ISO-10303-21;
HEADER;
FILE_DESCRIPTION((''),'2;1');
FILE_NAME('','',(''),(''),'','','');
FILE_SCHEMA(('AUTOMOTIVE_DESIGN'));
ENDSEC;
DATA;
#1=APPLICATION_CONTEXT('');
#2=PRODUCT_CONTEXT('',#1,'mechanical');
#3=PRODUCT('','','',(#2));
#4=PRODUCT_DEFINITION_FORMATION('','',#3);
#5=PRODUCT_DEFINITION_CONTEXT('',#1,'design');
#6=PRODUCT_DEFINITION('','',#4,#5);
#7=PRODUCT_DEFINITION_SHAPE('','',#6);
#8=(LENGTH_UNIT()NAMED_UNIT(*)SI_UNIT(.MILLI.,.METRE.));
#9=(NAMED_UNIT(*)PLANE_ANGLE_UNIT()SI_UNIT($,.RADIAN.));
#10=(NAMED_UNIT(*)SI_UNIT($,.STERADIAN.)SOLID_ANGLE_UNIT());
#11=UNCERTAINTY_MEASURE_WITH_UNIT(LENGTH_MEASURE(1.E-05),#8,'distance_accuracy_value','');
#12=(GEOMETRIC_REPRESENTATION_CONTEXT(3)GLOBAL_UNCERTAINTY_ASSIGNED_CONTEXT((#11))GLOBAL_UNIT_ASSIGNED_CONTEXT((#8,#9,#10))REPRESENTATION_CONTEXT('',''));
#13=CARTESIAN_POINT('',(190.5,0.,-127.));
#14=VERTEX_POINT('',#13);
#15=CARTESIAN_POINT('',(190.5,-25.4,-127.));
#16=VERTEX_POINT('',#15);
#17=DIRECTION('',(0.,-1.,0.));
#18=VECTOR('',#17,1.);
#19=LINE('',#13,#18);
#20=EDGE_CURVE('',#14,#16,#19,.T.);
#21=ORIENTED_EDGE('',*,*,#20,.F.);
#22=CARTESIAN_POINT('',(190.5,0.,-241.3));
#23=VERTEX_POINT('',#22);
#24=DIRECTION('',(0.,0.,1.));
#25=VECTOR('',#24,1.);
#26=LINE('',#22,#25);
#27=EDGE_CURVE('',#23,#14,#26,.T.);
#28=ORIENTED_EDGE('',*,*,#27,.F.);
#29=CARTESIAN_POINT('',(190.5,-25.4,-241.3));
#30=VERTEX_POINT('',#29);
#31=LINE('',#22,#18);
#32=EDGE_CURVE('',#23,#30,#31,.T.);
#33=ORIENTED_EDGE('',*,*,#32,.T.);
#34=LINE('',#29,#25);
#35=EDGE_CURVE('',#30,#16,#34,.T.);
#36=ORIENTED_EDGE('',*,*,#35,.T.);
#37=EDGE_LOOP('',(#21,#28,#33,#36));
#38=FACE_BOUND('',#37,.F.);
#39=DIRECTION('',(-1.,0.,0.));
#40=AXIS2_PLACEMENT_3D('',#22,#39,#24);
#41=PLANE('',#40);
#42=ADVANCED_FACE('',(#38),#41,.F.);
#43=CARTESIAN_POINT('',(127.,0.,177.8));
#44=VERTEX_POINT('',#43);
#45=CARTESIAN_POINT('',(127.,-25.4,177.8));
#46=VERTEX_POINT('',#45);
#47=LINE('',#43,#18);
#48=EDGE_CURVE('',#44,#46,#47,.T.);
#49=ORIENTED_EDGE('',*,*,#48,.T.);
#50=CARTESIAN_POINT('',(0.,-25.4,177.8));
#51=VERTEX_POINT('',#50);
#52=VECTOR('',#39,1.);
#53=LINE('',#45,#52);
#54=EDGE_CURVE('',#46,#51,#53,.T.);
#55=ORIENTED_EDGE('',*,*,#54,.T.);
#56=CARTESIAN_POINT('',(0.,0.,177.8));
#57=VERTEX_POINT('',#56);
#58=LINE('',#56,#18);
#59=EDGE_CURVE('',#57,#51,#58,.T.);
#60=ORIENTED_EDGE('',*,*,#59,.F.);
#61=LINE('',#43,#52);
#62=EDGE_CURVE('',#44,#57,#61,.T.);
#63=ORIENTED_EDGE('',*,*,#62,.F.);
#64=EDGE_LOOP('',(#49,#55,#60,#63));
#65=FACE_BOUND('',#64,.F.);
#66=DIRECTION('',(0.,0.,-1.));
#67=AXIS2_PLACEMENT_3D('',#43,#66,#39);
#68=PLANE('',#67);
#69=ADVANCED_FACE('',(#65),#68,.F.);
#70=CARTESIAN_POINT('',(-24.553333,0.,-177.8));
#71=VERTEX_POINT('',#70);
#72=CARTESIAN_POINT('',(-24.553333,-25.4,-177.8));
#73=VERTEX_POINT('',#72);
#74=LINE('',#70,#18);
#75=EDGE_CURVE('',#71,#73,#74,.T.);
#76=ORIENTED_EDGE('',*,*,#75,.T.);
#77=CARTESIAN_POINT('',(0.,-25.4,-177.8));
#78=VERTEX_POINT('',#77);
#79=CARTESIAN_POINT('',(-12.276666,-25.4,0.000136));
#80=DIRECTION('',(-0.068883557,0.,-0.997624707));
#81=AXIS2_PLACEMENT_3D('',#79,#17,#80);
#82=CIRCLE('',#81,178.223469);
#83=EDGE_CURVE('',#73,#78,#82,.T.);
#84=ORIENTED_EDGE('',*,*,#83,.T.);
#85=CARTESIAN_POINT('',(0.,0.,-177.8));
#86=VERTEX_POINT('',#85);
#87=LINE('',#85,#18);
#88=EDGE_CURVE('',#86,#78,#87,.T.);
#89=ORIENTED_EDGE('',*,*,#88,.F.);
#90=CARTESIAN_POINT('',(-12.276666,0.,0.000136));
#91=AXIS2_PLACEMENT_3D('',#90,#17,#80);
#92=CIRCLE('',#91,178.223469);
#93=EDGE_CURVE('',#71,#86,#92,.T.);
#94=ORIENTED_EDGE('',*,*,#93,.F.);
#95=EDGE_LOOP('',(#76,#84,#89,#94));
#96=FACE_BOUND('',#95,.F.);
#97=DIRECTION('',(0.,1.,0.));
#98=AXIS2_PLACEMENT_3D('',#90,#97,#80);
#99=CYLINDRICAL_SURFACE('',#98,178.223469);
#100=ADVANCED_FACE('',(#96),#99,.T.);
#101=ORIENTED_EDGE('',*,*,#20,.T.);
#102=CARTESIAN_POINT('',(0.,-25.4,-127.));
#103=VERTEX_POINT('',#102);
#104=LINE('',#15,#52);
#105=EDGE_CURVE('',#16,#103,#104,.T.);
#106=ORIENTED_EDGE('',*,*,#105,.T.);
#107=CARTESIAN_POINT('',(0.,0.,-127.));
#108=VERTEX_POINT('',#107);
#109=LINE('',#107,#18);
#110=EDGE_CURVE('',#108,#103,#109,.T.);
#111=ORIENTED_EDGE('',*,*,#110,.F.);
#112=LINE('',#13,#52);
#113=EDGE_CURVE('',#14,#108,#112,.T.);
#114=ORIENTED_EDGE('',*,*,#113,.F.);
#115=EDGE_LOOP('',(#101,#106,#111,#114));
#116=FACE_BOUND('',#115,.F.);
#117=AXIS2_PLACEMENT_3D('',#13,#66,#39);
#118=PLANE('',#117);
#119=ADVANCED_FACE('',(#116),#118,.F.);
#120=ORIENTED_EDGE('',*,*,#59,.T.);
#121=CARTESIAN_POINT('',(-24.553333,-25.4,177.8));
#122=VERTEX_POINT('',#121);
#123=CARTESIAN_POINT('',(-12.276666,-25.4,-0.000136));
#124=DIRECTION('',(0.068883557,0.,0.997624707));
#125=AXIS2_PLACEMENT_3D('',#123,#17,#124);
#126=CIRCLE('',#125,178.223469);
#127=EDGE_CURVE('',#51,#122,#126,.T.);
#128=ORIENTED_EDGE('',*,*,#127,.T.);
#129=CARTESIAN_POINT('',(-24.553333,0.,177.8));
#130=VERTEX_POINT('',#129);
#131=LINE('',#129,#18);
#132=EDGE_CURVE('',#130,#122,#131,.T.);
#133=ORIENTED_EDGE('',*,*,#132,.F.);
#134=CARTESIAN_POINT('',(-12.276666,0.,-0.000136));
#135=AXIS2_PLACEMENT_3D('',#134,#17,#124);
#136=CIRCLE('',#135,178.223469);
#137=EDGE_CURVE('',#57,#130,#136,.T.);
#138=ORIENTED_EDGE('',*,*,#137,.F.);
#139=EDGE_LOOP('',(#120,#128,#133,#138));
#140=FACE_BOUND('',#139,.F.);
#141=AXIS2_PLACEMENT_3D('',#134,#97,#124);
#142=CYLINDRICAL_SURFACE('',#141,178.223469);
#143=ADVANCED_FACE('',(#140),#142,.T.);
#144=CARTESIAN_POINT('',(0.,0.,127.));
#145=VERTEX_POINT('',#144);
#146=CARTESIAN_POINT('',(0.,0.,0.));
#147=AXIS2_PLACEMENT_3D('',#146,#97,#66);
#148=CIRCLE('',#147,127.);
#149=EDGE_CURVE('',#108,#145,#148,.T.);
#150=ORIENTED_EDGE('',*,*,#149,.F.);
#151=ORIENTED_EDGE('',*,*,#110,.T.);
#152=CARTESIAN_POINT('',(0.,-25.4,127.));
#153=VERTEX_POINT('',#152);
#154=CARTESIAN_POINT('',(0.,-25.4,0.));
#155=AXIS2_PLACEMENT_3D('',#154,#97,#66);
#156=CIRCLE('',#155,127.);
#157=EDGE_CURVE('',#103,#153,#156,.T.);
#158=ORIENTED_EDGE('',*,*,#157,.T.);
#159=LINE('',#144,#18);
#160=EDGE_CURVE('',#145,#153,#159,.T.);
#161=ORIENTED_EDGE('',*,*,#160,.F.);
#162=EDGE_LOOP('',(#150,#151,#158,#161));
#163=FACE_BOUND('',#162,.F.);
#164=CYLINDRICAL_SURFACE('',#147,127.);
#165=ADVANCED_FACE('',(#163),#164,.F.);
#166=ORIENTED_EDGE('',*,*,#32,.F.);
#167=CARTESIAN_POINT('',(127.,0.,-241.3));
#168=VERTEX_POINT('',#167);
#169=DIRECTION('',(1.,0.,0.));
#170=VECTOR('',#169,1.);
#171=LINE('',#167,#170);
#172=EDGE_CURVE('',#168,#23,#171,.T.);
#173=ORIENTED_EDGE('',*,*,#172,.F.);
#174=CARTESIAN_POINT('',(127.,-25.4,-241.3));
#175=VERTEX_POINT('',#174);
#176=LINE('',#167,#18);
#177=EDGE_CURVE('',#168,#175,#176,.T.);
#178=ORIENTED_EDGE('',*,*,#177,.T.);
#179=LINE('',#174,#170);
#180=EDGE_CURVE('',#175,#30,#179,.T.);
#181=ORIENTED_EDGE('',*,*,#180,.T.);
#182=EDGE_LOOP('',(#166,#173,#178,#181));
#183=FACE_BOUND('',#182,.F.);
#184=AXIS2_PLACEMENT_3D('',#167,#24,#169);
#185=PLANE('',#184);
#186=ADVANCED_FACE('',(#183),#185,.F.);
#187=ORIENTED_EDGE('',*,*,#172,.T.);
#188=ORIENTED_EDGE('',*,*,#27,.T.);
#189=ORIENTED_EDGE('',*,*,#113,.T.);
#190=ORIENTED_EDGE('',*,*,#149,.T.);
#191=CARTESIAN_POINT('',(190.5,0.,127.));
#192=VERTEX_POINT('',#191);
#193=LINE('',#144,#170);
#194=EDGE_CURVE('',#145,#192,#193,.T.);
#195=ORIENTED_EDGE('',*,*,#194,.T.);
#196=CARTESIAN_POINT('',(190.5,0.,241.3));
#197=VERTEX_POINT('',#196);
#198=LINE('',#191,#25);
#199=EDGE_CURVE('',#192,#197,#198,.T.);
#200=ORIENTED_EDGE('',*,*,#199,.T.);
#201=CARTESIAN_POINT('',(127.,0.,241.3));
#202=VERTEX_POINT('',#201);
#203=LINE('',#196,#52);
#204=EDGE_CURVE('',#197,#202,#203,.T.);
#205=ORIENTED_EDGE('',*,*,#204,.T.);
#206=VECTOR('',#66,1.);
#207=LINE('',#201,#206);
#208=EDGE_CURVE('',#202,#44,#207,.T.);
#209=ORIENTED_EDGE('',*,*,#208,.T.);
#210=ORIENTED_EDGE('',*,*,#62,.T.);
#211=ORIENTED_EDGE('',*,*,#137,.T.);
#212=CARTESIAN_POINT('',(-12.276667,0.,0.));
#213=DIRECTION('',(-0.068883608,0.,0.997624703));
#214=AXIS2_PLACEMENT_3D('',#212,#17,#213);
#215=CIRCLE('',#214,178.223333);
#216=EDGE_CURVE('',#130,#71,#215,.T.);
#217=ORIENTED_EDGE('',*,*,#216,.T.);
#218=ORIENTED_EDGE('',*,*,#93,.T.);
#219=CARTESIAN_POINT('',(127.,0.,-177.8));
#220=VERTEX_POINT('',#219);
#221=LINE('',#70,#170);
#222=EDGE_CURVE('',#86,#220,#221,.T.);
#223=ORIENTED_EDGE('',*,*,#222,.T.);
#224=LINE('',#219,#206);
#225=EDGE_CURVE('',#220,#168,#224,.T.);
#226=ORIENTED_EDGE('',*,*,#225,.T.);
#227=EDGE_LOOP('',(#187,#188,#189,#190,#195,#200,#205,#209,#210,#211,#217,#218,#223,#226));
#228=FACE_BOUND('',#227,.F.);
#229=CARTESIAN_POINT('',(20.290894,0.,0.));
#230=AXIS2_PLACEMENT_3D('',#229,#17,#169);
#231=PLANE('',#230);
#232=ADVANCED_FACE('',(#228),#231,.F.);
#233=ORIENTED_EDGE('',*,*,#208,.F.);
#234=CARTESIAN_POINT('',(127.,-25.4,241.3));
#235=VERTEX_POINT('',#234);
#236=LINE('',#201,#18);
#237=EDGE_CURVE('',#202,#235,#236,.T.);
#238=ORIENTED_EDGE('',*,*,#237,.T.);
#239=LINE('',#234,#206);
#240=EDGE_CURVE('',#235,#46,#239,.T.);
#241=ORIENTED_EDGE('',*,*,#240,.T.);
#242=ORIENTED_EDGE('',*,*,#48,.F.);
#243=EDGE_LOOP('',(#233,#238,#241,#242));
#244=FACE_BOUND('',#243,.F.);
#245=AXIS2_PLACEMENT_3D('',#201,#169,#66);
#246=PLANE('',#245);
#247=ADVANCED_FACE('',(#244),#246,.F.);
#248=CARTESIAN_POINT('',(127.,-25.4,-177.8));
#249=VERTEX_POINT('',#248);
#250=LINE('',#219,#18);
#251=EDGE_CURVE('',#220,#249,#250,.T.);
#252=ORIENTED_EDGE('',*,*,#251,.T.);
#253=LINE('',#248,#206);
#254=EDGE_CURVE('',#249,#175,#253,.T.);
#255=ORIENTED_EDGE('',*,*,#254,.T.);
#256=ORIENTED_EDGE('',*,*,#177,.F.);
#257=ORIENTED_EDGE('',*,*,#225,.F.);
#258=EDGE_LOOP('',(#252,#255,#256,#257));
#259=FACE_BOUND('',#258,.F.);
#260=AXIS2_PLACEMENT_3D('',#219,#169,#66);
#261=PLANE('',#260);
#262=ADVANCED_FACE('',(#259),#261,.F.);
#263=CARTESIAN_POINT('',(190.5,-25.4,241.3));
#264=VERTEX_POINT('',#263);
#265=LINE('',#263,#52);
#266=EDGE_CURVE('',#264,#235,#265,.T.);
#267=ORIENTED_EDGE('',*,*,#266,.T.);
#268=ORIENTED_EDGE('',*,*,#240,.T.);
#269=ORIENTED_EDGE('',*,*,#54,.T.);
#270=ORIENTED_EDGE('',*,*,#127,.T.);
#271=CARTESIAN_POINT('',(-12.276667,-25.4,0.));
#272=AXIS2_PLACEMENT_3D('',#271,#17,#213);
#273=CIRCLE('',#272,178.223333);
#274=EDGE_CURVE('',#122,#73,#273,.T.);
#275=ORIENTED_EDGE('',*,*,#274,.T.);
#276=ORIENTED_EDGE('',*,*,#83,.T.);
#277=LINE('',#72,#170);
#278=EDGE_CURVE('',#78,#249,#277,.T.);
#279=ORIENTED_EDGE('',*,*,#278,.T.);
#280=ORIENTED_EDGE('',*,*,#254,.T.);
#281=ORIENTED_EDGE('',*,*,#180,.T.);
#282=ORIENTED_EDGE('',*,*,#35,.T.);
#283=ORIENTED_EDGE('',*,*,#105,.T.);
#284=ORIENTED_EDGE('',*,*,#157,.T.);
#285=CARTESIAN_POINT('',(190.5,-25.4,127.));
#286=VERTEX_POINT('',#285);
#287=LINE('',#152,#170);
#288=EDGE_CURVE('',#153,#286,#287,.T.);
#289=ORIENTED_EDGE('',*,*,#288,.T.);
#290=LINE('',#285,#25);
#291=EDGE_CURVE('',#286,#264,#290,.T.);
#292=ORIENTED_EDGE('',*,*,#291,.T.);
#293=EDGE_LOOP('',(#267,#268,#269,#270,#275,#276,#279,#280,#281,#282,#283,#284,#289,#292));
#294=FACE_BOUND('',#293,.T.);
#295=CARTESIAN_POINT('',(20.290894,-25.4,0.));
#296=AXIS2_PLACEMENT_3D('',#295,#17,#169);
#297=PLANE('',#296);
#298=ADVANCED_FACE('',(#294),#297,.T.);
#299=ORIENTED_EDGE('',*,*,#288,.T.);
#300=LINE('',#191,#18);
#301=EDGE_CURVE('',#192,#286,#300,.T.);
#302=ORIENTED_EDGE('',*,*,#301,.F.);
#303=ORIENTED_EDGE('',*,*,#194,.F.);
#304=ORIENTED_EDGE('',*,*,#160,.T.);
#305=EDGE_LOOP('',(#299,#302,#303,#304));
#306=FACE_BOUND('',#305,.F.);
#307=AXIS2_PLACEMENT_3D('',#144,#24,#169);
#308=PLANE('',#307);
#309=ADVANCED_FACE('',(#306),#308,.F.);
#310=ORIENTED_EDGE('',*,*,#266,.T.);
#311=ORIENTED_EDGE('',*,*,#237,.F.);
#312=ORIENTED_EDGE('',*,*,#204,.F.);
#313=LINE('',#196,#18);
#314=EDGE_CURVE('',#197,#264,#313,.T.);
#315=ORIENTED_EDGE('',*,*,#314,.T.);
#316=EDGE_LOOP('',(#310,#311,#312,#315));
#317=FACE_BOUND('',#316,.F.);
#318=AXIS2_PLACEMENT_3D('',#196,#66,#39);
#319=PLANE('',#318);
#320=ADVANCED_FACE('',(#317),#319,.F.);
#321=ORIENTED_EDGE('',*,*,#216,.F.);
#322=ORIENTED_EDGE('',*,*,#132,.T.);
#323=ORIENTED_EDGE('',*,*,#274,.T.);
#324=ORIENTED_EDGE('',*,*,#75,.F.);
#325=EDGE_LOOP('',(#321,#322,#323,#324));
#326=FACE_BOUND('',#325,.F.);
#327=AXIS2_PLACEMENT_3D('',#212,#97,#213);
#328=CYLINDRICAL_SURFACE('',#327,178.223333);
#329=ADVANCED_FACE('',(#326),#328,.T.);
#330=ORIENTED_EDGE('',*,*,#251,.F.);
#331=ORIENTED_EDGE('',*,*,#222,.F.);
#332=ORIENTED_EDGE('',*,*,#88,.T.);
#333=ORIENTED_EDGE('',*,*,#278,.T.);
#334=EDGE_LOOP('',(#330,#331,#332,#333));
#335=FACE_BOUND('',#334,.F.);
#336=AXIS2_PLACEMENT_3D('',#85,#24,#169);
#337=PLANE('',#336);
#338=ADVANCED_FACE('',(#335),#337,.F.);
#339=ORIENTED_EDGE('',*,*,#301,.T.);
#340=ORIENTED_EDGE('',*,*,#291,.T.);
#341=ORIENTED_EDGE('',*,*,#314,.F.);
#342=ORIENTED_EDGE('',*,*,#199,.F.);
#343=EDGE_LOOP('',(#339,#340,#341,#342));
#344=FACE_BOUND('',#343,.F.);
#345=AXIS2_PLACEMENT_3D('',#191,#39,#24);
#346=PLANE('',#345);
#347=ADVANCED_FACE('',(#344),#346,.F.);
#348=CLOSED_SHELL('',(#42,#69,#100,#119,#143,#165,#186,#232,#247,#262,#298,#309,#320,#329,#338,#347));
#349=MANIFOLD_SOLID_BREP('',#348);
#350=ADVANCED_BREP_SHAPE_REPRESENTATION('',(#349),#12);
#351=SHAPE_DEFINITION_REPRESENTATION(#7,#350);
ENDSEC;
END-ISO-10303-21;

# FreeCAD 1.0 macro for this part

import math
import FreeCAD as App
import Part
import Sketcher
Q = App.Units.Quantity

doc = App.newDocument("Part")
body = doc.addObject("PartDesign::Body", "Body")

# Sketch on XZ plane
sketch1 = body.newObject("Sketcher::SketchObject", "Sketch")
sketch1.AttachmentSupport = (doc.getObject("XZ_Plane"), [""])
sketch1.MapMode = "FlatFace"
sketch1.addGeometry(Part.LineSegment(App.Vector(127, -177.8, 0), App.Vector(127, -241.3, 0)), False)
sketch1.addGeometry(Part.LineSegment(App.Vector(127, -241.3, 0), App.Vector(190.5, -241.3, 0)), False)
sketch1.addGeometry(Part.LineSegment(App.Vector(190.5, -241.3, 0), App.Vector(190.5, -127, 0)), False)
sketch1.addGeometry(Part.LineSegment(App.Vector(190.5, -127, 0), App.Vector(0, -127, 0)), False)
sketch1.addGeometry(Part.ArcOfCircle(Part.Circle(App.Vector(0, 0, 0), App.Vector(0, 0, 1), 127), math.radians(90), math.radians(270)), False)
sketch1.addGeometry(Part.LineSegment(App.Vector(0, 127, 0), App.Vector(190.5, 127, 0)), False)
sketch1.addGeometry(Part.LineSegment(App.Vector(190.5, 127, 0), App.Vector(190.5, 241.3, 0)), False)
sketch1.addGeometry(Part.LineSegment(App.Vector(190.5, 241.3, 0), App.Vector(127, 241.3, 0)), False)
sketch1.addGeometry(Part.LineSegment(App.Vector(127, 241.3, 0), App.Vector(127, 177.8, 0)), False)
sketch1.addGeometry(Part.LineSegment(App.Vector(127, 177.8, 0), App.Vector(0, 177.8, 0)), False)
sketch1.addGeometry(Part.ArcOfCircle(Part.Circle(App.Vector(-12.276666, -0.000135, 0), App.Vector(0, 0, 1), 178.223468), math.radians(86.050135), math.radians(93.949865)), False)
sketch1.addGeometry(Part.ArcOfCircle(Part.Circle(App.Vector(-12.276667, 0, 0), App.Vector(0, 0, 1), 178.223333), math.radians(93.949868), math.radians(266.050132)), False)
sketch1.addGeometry(Part.ArcOfCircle(Part.Circle(App.Vector(-12.276666, 0.000135, 0), App.Vector(0, 0, 1), 178.223468), math.radians(-93.949865), math.radians(-86.050135)), False)
sketch1.addGeometry(Part.LineSegment(App.Vector(0, -177.8, 0), App.Vector(127, -177.8, 0)), False)
sketch1.addConstraint(Sketcher.Constraint("Coincident", 0, 2, 1, 1))
sketch1.addConstraint(Sketcher.Constraint("Coincident", 1, 2, 2, 1))
sketch1.addConstraint(Sketcher.Constraint("Coincident", 2, 2, 3, 1))
sketch1.addConstraint(Sketcher.Constraint("Coincident", 3, 2, 4, 2))
sketch1.addConstraint(Sketcher.Constraint("Coincident", 4, 1, 5, 1))
sketch1.addConstraint(Sketcher.Constraint("Coincident", 5, 2, 6, 1))
sketch1.addConstraint(Sketcher.Constraint("Coincident", 6, 2, 7, 1))
sketch1.addConstraint(Sketcher.Constraint("Coincident", 7, 2, 8, 1))
sketch1.addConstraint(Sketcher.Constraint("Coincident", 8, 2, 9, 1))
sketch1.addConstraint(Sketcher.Constraint("Coincident", 9, 2, 10, 1))
sketch1.addConstraint(Sketcher.Constraint("Coincident", 10, 2, 11, 1))
sketch1.addConstraint(Sketcher.Constraint("Coincident", 11, 2, 12, 1))
sketch1.addConstraint(Sketcher.Constraint("Coincident", 12, 2, 13, 1))
sketch1.addConstraint(Sketcher.Constraint("Coincident", 13, 2, 0, 1))
sketch1.addConstraint(Sketcher.Constraint("Vertical", 0))
sketch1.addConstraint(Sketcher.Constraint("Horizontal", 1))
sketch1.addConstraint(Sketcher.Constraint("Vertical", 2))
sketch1.addConstraint(Sketcher.Constraint("Horizontal", 3))
sketch1.addConstraint(Sketcher.Constraint("Horizontal", 5))
sketch1.addConstraint(Sketcher.Constraint("Vertical", 6))
sketch1.addConstraint(Sketcher.Constraint("Horizontal", 7))
sketch1.addConstraint(Sketcher.Constraint("Vertical", 8))
sketch1.addConstraint(Sketcher.Constraint("Horizontal", 9))
sketch1.addConstraint(Sketcher.Constraint("Horizontal", 13))
sketch1.addConstraint(Sketcher.Constraint("Coincident", 4, 3, -1, 1))
sketch1.addConstraint(Sketcher.Constraint("PointOnObject", 11, 3, -1))
sketch1.addConstraint(Sketcher.Constraint("PointOnObject", 3, 2, -2))
sketch1.addConstraint(Sketcher.Constraint("PointOnObject", 4, 1, -2))
sketch1.addConstraint(Sketcher.Constraint("PointOnObject", 9, 2, -2))
sketch1.addConstraint(Sketcher.Constraint("PointOnObject", 12, 2, -2))
sketch1.addConstraint(Sketcher.Constraint("Radius", 4, Q("5 in")))
sketch1.addConstraint(Sketcher.Constraint("DistanceX", 9, 2, 9, 1, Q("5 in")))
sketch1.addConstraint(Sketcher.Constraint("DistanceX", 13, 1, 13, 2, Q("5 in")))
sketch1.addConstraint(Sketcher.Constraint("DistanceX", 1, 1, 1, 2, Q("2.5 in")))
sketch1.addConstraint(Sketcher.Constraint("DistanceX", 5, 1, 5, 2, Q("7.5 in")))
sketch1.addConstraint(Sketcher.Constraint("DistanceY", 0, 2, 0, 1, Q("2.5 in")))
sketch1.addConstraint(Sketcher.Constraint("DistanceY", 2, 1, 2, 2, Q("4.5 in")))
sketch1.addConstraint(Sketcher.Constraint("DistanceY", 6, 1, 6, 2, Q("4.5 in")))
sketch1.addConstraint(Sketcher.Constraint("DistanceY", 8, 2, 8, 1, Q("2.5 in")))
sketch1.addConstraint(Sketcher.Constraint("DistanceY", -1, 1, 10, 2, Q("7 in")))
sketch1.addConstraint(Sketcher.Constraint("DistanceY", 11, 2, -1, 1, Q("7 in")))
sketch1.addConstraint(Sketcher.Constraint("Radius", 10, 178.223468))
sketch1.addConstraint(Sketcher.Constraint("Radius", 12, 178.223468))
sketch1.addConstraint(Sketcher.Constraint("Radius", 11, 178.223333))
sketch1.addConstraint(Sketcher.Constraint("DistanceY", 10, 3, 12, 3, 0.000271))
pad1 = body.newObject("PartDesign::Pad", "Pad")
pad1.Profile = sketch1
pad1.Length = Q("1 in")

doc.recompute()
